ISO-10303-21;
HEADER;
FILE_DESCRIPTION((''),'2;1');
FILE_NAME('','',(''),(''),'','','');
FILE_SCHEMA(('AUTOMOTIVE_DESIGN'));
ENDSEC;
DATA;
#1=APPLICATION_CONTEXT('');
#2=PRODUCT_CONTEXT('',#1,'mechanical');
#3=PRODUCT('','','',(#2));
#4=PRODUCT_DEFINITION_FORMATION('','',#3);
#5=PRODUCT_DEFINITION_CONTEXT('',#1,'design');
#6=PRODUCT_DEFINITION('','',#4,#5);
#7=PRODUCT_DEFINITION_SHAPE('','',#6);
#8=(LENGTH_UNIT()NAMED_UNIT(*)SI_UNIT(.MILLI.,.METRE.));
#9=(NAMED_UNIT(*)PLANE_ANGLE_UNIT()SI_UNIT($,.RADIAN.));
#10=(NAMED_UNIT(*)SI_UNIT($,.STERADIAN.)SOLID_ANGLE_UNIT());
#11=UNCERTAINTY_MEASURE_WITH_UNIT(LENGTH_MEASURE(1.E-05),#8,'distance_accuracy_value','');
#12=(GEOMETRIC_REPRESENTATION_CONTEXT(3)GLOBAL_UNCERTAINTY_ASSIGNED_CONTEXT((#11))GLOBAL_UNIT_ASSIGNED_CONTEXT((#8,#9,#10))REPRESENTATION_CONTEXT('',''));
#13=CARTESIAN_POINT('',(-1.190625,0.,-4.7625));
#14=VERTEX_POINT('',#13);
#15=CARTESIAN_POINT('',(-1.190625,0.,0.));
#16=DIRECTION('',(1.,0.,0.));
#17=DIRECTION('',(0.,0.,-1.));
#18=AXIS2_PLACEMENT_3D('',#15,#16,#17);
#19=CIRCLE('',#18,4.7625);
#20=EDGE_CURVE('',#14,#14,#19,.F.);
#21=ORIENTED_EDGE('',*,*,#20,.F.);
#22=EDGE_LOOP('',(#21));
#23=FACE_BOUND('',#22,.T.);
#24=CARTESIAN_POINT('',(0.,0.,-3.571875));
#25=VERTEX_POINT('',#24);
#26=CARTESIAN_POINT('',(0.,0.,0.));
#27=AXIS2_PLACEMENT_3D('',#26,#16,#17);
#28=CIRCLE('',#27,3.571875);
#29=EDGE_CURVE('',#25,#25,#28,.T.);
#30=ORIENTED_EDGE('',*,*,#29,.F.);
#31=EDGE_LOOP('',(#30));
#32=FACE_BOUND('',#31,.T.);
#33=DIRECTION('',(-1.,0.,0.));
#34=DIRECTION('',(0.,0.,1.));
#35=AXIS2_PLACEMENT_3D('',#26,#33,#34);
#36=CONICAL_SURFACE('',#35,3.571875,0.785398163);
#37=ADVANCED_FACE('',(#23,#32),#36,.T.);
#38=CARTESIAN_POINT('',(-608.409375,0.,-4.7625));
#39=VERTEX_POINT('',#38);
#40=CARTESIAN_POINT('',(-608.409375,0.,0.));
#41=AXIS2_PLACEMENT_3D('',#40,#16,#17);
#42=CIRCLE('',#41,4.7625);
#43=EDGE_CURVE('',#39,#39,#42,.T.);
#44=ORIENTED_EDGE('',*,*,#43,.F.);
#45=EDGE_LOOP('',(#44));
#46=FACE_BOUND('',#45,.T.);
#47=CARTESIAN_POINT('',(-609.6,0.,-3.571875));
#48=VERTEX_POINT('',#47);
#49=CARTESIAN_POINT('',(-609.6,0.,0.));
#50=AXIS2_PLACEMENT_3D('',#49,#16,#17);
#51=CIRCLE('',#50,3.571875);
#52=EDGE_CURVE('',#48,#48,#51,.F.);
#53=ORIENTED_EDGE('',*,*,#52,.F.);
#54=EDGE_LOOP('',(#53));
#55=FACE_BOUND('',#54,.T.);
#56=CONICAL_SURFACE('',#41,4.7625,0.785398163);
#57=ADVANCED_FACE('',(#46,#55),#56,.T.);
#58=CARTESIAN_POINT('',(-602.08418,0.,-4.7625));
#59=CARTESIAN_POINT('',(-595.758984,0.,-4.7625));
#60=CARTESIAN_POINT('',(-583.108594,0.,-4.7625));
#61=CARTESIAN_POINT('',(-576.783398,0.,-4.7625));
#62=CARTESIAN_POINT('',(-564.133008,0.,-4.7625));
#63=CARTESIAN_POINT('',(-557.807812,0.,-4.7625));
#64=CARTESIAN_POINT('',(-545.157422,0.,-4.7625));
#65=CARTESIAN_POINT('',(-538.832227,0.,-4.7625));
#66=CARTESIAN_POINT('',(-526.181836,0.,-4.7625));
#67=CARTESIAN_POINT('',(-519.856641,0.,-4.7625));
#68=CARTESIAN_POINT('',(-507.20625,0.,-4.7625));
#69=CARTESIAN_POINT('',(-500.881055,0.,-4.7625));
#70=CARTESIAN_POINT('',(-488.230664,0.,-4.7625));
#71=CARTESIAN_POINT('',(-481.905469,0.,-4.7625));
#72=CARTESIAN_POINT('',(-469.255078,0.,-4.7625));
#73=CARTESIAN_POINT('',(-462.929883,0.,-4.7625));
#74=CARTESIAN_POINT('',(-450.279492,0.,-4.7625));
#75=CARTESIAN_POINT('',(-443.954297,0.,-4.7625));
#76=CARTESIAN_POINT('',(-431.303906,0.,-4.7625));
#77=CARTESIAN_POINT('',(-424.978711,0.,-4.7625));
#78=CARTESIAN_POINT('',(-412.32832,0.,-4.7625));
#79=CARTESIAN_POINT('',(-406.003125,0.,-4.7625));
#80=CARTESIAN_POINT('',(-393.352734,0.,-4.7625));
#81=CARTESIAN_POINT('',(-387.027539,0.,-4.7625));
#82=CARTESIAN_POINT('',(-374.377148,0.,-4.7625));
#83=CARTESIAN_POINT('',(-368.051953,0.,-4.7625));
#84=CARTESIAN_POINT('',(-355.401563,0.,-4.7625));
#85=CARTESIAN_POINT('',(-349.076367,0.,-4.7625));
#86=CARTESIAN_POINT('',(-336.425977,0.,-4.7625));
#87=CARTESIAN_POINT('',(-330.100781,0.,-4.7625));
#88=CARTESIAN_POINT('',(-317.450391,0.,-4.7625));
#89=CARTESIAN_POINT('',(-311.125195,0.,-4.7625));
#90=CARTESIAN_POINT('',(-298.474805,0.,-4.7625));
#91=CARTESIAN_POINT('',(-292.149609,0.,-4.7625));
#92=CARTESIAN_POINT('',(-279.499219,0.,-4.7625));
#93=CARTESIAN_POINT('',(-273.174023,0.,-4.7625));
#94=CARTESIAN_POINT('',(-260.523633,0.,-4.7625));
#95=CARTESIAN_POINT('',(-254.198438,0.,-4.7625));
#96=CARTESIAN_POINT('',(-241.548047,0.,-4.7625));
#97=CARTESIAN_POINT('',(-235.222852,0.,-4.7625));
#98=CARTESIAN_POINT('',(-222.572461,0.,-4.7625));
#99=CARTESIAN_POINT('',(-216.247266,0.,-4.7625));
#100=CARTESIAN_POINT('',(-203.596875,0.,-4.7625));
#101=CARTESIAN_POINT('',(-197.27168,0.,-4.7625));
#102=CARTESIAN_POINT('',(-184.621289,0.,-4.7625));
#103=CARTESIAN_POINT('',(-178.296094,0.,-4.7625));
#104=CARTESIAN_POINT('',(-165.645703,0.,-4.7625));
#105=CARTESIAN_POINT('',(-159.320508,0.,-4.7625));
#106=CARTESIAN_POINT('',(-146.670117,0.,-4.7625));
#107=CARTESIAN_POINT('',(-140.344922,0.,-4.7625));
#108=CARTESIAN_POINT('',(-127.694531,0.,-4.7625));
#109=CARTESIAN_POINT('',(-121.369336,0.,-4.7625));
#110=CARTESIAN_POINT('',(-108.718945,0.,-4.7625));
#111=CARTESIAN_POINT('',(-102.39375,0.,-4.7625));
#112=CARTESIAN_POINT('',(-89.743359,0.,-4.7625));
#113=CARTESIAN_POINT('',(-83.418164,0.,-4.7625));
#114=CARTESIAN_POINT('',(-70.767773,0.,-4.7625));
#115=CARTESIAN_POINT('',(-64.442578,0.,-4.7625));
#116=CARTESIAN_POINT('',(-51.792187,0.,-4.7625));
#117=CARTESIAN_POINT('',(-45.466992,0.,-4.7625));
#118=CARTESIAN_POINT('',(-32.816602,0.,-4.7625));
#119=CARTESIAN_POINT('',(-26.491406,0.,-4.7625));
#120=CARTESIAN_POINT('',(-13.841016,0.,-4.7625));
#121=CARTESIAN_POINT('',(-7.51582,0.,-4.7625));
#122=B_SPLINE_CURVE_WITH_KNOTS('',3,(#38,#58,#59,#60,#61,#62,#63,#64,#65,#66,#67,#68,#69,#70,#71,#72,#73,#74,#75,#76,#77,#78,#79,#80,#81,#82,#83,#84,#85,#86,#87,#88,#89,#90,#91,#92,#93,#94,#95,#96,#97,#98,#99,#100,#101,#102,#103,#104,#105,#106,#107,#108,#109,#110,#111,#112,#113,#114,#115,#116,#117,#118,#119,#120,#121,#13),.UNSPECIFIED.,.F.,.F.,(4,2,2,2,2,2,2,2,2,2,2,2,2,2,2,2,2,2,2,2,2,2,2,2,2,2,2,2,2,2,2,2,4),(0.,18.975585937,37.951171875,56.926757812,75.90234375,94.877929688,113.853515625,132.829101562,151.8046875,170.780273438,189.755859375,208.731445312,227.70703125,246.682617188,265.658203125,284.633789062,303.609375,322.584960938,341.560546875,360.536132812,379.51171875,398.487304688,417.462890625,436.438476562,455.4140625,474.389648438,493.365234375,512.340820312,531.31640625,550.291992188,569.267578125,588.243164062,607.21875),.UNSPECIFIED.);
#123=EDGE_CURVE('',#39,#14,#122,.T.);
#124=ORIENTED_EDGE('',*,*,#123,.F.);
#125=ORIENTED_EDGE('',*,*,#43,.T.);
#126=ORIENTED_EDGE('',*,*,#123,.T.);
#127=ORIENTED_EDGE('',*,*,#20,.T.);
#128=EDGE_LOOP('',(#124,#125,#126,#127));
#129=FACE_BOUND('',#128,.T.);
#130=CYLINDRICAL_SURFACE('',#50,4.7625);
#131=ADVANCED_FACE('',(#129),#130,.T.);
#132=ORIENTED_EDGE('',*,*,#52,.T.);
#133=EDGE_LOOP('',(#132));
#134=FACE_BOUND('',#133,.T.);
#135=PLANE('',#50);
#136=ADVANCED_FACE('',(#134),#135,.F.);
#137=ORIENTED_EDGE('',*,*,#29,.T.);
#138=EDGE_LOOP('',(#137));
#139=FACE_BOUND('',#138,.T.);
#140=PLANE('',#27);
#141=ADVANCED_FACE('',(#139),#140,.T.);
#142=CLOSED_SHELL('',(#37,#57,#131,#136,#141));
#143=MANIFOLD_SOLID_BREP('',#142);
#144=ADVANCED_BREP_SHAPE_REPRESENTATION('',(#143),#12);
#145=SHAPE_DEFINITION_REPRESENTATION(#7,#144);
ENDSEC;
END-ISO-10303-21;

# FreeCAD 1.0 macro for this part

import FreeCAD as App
import Part
import Sketcher

V = App.Vector
Q = App.Units.Quantity


def edges_at(feature, points):
    """Names of the edges that pass closest to the given points."""
    edges = feature.Shape.Edges
    near = lambda p: min(range(len(edges)), key=lambda i: edges[i].distToShape(Part.Vertex(*p))[0])
    return sorted({f"Edge{near(p) + 1}" for p in points})

doc = App.newDocument("Part")
body = doc.addObject("PartDesign::Body", "Body")

# Sketch on YZ plane
sketch1 = body.newObject("Sketcher::SketchObject", "Sketch")
sketch1.AttachmentSupport = (doc.getObject("YZ_Plane"), [""])
sketch1.MapMode = "FlatFace"
sketch1.addGeometry(Part.Circle(V(0, 0, 0), V(0, 0, 1), 4.7625), False)
sketch1.addConstraint(Sketcher.Constraint("Coincident", 0, 3, -1, 1))
sketch1.addConstraint(Sketcher.Constraint("Diameter", 0, Q("0.375 in")))
pad1 = body.newObject("PartDesign::Pad", "Pad")
pad1.Profile = sketch1
pad1.Length = Q("24 in")
pad1.Reversed = True
doc.recompute()

chamfer = body.newObject("PartDesign::Chamfer", "Chamfer")
chamfer.Base = (pad1, edges_at(pad1, [(0, 0, 4.763), (-609.6, 0, 4.763)]))
chamfer.Size = Q("0.046875 in")

doc.recompute()
